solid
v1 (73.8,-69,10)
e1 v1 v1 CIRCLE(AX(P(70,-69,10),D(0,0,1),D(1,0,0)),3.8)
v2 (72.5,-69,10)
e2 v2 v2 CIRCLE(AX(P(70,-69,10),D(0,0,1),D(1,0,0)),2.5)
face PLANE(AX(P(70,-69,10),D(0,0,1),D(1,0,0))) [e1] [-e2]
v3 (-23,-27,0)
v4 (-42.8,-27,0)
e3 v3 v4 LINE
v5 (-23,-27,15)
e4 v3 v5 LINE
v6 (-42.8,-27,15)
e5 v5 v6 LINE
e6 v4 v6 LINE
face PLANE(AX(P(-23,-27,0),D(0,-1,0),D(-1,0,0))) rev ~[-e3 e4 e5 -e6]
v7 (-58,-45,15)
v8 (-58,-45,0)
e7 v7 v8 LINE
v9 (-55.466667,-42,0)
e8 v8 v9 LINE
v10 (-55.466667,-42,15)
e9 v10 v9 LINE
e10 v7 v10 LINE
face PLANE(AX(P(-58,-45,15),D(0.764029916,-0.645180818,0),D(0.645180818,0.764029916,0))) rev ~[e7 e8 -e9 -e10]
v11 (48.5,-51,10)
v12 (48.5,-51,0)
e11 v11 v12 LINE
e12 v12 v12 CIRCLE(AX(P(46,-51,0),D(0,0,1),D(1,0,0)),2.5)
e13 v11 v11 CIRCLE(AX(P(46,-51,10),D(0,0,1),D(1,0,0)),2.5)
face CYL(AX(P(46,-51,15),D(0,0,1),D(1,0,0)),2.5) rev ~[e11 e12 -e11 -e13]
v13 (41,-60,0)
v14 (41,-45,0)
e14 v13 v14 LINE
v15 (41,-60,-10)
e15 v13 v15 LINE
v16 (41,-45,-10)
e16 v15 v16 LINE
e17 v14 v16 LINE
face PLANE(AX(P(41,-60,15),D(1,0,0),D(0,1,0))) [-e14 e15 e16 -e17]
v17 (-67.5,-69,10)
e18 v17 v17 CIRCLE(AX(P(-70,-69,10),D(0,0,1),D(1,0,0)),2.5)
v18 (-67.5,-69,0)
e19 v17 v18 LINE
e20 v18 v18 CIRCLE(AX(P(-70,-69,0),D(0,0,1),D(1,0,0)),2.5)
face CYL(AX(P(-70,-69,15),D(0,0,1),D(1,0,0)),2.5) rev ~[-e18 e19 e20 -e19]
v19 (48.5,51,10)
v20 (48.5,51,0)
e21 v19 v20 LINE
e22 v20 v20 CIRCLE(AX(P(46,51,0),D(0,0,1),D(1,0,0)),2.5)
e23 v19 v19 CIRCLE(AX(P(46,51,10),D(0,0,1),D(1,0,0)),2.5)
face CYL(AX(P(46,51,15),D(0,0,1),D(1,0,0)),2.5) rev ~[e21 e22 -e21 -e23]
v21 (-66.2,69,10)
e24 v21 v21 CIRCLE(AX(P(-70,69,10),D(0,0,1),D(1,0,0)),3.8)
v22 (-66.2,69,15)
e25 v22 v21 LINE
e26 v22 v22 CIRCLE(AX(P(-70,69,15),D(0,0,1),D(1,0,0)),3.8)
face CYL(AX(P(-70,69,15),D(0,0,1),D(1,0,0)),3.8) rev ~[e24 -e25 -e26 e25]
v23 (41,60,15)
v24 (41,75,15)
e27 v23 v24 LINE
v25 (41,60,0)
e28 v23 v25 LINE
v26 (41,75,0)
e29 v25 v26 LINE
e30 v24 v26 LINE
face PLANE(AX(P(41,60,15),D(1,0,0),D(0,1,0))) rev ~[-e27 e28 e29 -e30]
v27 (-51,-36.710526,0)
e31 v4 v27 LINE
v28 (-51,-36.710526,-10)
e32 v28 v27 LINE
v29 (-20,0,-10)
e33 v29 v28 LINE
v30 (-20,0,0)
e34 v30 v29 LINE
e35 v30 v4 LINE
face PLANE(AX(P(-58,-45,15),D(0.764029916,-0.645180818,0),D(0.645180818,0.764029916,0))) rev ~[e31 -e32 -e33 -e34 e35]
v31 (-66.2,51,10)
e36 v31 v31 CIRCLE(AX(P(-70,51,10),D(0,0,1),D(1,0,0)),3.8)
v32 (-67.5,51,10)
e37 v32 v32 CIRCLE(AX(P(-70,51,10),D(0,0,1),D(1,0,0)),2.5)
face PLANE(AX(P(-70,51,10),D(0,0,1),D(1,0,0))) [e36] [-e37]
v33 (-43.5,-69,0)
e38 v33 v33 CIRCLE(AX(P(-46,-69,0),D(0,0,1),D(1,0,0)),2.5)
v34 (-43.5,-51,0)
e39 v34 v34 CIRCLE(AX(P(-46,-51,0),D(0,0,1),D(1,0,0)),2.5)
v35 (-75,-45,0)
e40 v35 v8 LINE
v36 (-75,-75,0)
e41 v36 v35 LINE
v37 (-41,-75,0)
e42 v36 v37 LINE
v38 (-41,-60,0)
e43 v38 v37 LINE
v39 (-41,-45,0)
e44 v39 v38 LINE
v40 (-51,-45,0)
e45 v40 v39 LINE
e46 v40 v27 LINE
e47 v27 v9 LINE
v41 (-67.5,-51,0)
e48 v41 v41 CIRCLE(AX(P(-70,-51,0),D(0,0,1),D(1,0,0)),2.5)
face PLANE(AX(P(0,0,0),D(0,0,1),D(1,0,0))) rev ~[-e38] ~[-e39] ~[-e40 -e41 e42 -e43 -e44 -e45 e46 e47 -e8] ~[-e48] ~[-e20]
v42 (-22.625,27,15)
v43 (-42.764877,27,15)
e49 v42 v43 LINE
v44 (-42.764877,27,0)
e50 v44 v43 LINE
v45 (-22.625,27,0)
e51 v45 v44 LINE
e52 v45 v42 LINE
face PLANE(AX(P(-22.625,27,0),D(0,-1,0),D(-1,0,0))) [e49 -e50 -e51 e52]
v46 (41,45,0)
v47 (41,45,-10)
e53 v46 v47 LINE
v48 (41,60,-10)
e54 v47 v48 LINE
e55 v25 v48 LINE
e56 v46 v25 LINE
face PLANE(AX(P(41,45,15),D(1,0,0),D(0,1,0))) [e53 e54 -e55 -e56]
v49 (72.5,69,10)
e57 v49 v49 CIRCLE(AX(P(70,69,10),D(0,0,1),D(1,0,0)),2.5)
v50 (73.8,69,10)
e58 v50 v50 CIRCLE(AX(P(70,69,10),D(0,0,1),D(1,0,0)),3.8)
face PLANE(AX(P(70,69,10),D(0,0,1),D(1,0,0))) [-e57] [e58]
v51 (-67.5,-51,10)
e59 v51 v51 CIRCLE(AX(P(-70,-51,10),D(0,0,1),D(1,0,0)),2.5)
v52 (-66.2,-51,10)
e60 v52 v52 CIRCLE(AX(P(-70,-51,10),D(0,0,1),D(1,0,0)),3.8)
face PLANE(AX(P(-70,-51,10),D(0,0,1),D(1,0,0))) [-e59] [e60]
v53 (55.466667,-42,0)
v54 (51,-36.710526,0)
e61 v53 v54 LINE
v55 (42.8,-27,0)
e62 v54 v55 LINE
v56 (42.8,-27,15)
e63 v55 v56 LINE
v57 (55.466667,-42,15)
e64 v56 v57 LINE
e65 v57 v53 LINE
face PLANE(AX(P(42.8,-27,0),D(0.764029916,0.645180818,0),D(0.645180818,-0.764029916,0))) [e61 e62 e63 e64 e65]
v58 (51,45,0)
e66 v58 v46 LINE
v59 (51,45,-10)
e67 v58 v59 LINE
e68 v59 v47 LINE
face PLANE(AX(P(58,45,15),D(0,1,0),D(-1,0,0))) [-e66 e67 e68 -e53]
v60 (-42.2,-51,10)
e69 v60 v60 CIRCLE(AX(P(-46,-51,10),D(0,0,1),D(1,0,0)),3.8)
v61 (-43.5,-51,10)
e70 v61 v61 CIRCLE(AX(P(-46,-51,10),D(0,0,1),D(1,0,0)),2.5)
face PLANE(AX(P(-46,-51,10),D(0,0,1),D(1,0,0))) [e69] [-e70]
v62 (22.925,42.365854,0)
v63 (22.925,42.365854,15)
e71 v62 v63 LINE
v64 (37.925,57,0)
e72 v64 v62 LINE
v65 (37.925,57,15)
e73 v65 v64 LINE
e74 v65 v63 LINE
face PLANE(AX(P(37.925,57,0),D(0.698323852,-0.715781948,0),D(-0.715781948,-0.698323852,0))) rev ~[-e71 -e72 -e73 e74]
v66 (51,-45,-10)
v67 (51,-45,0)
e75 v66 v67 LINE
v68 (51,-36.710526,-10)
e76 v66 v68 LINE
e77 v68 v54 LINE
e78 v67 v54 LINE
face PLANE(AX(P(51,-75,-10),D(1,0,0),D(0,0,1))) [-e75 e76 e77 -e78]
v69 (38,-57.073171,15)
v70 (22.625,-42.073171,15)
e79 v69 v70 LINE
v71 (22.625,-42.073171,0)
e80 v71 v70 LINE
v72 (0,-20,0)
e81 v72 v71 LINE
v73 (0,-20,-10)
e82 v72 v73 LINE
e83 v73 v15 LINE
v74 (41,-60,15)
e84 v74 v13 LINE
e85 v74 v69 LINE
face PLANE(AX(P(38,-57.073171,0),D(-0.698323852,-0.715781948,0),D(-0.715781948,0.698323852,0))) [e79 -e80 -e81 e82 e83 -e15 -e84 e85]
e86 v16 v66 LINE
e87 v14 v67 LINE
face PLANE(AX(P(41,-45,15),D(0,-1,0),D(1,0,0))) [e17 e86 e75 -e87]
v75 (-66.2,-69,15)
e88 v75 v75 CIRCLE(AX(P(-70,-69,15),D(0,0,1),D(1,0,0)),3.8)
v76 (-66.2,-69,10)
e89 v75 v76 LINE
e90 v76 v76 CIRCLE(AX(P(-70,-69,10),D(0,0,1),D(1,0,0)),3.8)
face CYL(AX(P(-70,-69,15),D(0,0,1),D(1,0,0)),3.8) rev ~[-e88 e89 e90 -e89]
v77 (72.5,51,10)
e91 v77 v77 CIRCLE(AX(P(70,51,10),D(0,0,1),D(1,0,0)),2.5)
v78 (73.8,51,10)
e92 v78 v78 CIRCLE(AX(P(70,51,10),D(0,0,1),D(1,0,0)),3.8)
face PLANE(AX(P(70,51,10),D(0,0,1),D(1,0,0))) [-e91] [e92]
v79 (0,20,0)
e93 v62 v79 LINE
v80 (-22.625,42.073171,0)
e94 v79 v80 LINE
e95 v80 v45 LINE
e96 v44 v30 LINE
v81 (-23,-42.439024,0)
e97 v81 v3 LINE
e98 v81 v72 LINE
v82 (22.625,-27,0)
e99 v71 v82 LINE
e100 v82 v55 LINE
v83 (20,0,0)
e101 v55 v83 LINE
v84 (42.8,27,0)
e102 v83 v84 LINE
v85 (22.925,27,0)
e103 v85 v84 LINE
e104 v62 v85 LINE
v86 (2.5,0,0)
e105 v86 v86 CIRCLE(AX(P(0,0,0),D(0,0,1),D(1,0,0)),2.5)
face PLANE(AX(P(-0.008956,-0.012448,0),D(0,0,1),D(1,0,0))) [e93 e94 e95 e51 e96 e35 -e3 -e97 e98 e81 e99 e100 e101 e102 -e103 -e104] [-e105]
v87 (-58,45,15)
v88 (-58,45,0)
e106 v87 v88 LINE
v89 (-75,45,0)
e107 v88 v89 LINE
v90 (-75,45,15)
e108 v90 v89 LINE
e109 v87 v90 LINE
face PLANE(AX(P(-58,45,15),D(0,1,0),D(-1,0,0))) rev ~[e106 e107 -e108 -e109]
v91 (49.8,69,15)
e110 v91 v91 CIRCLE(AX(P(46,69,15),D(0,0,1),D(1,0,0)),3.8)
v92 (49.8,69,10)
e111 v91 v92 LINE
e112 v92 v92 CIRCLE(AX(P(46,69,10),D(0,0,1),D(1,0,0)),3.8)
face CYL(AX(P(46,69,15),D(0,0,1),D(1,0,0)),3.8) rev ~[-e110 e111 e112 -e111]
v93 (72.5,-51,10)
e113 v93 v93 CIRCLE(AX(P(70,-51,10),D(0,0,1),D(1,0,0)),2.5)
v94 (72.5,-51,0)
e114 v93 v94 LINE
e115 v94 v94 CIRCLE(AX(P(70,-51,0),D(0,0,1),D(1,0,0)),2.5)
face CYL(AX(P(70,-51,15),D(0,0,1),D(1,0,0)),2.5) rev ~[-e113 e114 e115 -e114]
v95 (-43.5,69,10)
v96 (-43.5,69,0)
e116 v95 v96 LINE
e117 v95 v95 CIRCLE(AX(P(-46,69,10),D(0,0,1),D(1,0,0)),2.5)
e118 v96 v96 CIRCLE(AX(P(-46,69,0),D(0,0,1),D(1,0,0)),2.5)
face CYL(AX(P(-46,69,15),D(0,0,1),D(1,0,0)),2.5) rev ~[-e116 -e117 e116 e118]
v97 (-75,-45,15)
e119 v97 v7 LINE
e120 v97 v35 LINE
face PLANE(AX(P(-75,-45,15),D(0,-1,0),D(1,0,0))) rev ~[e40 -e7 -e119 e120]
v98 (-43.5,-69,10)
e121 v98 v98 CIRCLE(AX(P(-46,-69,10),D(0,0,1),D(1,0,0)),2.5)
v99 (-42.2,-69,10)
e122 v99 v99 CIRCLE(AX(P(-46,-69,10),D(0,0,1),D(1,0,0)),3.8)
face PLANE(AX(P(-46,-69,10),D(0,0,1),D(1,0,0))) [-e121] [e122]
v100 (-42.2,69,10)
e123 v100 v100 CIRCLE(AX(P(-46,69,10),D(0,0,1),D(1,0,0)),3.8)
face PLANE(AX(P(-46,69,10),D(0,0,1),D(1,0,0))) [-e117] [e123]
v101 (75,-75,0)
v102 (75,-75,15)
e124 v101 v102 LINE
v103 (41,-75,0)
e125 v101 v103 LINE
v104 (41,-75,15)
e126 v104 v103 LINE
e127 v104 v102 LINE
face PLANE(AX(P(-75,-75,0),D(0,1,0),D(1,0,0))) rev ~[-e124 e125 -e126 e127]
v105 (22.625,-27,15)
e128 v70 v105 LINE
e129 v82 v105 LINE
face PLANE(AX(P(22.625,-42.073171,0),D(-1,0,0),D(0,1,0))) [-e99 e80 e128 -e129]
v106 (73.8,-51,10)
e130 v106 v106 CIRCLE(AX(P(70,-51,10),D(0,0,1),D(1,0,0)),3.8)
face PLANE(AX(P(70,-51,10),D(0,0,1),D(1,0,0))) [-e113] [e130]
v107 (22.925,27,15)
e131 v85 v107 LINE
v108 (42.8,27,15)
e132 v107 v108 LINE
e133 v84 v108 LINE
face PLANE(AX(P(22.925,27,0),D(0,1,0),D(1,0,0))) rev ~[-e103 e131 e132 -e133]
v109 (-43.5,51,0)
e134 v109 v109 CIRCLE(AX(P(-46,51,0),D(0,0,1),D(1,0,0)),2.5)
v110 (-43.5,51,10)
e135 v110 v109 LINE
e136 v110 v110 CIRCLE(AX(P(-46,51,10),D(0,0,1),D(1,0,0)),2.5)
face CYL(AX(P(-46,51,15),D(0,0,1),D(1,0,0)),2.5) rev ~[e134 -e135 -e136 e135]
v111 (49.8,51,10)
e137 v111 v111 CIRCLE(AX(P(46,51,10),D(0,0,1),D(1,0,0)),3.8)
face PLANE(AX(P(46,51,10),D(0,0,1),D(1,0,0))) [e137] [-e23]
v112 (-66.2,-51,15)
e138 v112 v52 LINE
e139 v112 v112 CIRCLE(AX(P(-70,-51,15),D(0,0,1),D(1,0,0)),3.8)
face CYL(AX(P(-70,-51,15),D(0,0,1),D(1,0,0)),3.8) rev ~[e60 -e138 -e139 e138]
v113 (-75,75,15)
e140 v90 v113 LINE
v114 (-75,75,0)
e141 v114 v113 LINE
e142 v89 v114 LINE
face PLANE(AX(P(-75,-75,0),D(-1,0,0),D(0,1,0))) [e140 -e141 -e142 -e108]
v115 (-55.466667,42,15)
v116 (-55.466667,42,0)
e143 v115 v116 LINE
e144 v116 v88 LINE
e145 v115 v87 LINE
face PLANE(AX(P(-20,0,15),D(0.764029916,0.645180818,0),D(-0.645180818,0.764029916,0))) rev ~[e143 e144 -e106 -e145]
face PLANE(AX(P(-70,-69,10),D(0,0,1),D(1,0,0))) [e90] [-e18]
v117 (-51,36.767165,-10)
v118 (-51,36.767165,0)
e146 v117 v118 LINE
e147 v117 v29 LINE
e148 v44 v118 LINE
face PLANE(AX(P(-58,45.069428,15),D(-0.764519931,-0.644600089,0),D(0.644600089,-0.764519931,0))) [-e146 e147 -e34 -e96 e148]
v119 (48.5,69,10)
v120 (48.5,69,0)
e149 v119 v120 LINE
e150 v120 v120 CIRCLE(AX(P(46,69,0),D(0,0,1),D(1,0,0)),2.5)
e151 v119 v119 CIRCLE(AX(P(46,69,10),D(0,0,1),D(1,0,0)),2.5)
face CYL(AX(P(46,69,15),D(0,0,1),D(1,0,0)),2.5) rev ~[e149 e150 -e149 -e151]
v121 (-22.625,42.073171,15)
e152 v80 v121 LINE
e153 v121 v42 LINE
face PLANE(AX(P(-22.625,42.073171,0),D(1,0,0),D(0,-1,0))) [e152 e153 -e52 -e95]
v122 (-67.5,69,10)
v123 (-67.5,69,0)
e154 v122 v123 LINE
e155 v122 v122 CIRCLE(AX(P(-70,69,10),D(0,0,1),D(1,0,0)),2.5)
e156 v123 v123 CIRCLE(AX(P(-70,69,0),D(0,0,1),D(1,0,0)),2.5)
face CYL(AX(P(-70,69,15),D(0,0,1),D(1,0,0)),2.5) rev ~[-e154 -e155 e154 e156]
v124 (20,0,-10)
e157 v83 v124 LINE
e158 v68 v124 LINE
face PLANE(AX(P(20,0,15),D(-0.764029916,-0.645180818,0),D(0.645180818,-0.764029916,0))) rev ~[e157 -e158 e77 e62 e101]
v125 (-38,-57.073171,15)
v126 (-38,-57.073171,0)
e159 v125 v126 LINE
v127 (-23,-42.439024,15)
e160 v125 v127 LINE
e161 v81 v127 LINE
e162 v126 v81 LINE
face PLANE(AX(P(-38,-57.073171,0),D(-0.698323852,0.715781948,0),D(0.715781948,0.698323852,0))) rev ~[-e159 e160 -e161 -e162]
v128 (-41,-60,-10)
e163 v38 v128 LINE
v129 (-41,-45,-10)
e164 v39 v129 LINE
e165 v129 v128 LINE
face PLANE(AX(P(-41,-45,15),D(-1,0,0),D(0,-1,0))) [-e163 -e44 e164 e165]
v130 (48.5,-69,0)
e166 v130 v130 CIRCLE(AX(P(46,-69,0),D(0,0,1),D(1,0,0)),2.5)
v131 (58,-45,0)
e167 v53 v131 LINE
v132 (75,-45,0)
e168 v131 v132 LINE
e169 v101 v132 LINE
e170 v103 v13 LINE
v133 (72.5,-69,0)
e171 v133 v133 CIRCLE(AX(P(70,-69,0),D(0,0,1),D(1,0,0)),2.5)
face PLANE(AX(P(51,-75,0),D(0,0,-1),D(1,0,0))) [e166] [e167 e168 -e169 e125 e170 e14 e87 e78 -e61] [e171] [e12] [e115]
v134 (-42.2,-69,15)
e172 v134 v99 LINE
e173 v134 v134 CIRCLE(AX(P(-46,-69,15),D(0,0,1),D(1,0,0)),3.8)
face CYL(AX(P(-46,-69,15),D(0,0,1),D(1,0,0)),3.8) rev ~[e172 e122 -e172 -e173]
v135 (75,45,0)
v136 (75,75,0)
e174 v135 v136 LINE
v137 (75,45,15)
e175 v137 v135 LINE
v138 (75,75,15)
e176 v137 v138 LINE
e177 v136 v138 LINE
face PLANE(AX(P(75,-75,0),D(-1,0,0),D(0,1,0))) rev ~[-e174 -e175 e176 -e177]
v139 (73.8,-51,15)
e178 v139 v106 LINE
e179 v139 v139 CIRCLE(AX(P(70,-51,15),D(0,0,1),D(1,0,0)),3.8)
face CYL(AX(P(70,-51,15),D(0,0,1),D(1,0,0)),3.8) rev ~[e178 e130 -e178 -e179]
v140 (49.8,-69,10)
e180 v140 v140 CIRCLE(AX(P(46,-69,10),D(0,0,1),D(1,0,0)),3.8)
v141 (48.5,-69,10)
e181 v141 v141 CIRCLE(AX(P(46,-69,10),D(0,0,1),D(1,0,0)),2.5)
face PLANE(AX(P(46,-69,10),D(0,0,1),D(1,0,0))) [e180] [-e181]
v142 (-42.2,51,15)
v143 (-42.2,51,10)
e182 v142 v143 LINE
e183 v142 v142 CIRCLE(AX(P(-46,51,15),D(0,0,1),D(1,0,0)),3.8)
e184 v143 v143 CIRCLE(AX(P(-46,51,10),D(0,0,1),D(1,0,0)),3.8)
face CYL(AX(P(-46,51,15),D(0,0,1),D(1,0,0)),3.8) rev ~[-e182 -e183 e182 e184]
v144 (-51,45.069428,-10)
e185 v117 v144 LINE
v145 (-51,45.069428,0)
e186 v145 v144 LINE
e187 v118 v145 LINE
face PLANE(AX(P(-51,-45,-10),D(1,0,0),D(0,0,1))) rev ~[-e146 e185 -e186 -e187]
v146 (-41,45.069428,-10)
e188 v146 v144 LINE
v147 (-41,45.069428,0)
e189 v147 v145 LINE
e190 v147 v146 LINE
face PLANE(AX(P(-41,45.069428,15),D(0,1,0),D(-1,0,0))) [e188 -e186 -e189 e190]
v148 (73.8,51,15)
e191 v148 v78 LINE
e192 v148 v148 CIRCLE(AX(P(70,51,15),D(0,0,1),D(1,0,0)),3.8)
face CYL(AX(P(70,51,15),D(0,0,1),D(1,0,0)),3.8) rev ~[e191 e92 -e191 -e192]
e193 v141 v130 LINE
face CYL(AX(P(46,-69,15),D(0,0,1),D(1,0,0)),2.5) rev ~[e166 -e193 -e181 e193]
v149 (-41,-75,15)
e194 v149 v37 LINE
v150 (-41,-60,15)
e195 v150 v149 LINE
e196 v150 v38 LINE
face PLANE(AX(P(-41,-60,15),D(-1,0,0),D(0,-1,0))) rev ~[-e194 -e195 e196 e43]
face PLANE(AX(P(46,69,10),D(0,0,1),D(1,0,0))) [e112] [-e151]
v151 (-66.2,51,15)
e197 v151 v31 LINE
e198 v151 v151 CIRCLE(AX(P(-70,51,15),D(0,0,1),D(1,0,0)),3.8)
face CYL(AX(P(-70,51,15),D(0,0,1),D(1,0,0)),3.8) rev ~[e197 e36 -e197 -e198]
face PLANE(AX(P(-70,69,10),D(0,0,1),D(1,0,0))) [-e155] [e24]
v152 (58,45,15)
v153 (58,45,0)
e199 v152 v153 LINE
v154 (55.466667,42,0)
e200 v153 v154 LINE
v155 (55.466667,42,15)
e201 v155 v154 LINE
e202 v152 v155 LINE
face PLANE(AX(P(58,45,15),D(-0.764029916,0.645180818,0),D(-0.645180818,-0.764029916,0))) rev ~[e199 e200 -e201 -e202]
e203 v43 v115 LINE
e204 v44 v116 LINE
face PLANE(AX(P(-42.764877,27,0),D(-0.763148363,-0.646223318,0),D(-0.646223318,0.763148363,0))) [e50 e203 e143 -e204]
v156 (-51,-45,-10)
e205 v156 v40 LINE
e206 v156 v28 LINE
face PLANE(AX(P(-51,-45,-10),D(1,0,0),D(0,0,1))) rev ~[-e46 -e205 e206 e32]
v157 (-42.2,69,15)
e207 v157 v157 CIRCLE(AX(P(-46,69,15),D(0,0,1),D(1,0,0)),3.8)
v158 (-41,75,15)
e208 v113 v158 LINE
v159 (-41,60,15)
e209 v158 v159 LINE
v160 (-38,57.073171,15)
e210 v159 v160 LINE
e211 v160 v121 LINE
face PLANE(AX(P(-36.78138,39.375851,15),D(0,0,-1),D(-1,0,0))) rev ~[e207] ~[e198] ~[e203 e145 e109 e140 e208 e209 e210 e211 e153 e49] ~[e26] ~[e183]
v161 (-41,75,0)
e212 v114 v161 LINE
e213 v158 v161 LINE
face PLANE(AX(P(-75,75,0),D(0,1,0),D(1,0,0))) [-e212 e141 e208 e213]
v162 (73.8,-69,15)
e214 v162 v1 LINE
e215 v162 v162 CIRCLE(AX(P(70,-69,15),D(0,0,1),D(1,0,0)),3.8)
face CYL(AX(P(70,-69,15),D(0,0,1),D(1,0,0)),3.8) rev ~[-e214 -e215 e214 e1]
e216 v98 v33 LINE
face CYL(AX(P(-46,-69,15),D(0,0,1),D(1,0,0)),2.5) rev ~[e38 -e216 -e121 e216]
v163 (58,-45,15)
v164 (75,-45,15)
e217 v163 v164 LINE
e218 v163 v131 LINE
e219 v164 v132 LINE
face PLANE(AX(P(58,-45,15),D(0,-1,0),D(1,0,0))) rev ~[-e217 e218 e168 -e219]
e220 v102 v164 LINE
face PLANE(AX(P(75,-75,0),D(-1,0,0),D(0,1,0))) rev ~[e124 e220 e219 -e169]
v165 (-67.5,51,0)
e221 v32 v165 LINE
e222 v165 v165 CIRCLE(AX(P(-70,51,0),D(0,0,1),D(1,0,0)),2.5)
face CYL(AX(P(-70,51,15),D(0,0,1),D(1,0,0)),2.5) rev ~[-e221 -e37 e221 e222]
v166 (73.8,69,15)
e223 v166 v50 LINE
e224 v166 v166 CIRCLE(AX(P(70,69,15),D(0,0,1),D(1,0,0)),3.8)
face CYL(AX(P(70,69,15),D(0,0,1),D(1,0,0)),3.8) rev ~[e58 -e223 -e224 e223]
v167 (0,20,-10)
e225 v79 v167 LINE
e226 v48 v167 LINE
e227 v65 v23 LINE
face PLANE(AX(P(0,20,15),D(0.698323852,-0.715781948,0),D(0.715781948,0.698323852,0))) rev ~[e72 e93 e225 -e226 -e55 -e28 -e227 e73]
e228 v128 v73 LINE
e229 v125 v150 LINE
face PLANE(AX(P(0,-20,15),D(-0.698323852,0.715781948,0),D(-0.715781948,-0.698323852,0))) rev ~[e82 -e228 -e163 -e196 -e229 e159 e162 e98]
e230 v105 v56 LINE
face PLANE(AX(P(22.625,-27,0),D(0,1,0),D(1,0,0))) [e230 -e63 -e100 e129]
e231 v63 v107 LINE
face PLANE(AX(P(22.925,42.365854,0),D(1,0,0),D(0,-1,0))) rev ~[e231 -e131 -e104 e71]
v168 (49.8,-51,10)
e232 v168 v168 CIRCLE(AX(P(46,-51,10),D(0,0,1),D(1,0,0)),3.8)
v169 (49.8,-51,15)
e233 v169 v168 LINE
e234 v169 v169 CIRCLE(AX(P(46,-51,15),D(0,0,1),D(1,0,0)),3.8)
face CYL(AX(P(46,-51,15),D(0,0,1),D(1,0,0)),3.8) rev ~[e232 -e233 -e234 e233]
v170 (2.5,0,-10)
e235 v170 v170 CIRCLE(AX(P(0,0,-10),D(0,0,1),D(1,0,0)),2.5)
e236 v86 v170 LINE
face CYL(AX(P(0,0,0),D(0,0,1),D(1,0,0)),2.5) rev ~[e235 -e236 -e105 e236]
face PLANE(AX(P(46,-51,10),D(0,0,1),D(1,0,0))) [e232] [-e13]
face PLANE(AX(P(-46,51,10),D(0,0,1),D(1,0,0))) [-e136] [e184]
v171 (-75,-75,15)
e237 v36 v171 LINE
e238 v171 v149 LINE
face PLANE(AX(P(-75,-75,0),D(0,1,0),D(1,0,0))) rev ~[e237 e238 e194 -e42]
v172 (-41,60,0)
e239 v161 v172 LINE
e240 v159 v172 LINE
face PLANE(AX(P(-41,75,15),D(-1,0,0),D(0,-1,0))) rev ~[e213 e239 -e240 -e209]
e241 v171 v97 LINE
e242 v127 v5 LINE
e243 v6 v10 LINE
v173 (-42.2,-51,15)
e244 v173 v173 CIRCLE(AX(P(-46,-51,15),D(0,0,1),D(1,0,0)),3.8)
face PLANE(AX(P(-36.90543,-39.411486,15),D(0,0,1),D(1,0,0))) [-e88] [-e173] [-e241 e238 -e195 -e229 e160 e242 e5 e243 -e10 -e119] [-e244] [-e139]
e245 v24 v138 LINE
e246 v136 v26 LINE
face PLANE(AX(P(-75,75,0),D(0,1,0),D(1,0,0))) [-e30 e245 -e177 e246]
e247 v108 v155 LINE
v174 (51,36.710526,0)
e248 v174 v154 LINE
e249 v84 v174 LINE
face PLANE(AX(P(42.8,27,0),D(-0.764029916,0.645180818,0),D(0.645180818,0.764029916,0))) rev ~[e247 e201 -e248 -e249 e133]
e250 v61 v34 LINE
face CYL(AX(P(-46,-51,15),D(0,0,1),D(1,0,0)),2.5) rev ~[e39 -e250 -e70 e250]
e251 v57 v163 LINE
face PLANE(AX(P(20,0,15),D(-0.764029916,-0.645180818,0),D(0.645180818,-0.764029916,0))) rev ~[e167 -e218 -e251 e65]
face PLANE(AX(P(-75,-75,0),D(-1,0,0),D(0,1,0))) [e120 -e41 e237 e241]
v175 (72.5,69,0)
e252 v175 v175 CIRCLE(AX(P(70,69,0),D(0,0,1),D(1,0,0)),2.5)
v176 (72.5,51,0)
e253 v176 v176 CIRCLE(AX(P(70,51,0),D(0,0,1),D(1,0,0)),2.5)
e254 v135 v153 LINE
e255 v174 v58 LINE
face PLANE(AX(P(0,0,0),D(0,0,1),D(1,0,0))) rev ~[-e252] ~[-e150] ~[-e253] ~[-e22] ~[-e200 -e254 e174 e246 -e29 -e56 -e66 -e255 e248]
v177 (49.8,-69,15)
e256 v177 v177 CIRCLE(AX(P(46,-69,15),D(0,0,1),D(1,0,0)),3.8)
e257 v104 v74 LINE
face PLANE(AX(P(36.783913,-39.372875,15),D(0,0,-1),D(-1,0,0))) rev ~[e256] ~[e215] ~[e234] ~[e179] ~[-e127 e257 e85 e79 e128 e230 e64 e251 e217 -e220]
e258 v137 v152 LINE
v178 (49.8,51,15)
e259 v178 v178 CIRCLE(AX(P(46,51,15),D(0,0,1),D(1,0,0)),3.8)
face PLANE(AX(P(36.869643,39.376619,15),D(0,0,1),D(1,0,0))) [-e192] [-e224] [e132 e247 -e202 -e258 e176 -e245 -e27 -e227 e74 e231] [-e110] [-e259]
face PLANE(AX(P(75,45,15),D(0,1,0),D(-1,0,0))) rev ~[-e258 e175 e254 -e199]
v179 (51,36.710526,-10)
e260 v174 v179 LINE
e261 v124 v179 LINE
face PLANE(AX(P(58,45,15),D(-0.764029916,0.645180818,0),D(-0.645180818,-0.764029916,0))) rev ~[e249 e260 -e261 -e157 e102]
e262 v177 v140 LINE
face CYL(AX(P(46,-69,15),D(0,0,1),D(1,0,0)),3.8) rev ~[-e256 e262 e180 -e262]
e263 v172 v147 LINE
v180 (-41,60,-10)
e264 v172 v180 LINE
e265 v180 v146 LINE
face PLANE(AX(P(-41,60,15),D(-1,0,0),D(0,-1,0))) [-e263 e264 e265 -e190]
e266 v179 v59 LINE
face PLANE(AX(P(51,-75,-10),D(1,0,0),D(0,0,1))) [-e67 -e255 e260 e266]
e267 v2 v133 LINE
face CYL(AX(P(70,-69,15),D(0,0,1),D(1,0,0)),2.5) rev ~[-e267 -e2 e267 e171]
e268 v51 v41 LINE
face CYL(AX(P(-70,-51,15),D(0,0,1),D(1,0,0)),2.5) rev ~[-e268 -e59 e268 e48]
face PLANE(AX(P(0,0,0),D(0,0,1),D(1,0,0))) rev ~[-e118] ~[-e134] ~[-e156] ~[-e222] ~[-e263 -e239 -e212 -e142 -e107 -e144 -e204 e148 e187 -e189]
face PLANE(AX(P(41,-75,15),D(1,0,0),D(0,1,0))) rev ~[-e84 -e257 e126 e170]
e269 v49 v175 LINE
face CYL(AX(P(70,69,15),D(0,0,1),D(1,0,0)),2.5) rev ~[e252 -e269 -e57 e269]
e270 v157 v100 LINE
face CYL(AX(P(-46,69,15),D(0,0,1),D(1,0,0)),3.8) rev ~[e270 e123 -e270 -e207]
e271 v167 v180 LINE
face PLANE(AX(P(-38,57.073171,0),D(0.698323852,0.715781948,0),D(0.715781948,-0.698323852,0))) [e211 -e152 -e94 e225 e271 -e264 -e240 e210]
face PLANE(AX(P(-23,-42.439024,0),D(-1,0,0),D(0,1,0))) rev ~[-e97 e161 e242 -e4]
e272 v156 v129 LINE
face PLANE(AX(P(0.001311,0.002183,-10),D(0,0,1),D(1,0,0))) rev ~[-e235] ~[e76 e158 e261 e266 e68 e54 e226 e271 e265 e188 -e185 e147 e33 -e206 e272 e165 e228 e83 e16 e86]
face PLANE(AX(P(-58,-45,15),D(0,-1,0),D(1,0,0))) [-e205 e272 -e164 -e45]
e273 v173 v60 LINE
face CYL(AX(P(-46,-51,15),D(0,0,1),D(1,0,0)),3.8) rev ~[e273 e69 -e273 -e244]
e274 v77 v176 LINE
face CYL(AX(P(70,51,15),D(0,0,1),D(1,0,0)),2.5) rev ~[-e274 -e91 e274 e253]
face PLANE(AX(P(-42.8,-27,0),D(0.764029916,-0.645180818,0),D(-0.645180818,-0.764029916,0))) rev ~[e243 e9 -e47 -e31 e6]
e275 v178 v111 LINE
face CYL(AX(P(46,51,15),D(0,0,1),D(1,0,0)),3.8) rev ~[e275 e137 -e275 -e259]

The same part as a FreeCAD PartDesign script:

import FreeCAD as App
import Part
import Sketcher
from FreeCAD import Vector


def add_polygon(sketch, points):
    """Adds a closed chain of lines whose ends are joined by coincident constraints."""
    first, n = sketch.GeometryCount, len(points)
    for a, b in zip(points, points[1:] + points[:1]):
        sketch.addGeometry(Part.LineSegment(App.Vector(*a, 0), App.Vector(*b, 0)), False)
    for i in range(n):
        sketch.addConstraint(Sketcher.Constraint("Coincident", first + i, 2, first + (i + 1) % n, 1))

doc = App.newDocument("Part")
params = doc.addObject("Spreadsheet::Sheet", "Params")
for row, (alias, value) in enumerate([
    ("sketch1_width", "150 mm"),
    ("pad1_length", "15 mm"),
    ("sketch2_width", "82 mm"),
    ("sketch2_width2", "17 mm"),
    ("sketch2_height", "15 mm"),
    ("sketch2_height2", "90 mm"),
    ("pocket1_length", "15 mm"),
    ("sketch3_width", "17 mm"),
    ("sketch3_height", "15 mm"),
    ("pad2_length", "25 mm"),
    ("sketch4_height", "15 mm"),
    ("sketch4_length", "52 mm"),
    ("pocket2_length", "15 mm"),
    ("sketch5_diameter", "5 mm"),
    ("pocket3_length", "15 mm"),
    ("sketch6_diameter", "5 mm"),
    ("pocket4_length", "15 mm"),
    ("sketch7_diameter", "7.6 mm"),
    ("pocket5_length", "5 mm"),
    ("sketch8_diameter", "5 mm"),
    ("sketch9_diameter", "7.6 mm"),
    ("pocket7_length", "5 mm"),
    ("sketch10_diameter", "5 mm"),
    ("sketch11_diameter", "7.6 mm"),
    ("pocket9_length", "5 mm"),
    ("sketch12_diameter", "5 mm"),
    ("sketch13_diameter", "7.6 mm"),
    ("pocket11_length", "5 mm"),
    ("sketch14_width", "19.8 mm"),
    ("pad3_length", "15 mm"),
    ("pad4_length", "15 mm"),
    ("sketch16_height", "15 mm"),
    ("pad5_length", "15 mm"),
    ("pad6_length", "15 mm"),
    ("sketch18_width", "7 mm"),
    ("sketch18_height", "10 mm"),
    ("sketch19_width", "7 mm"),
    ("sketch19_height", "10 mm"),
], start=1):
    params.set(f"A{row}", alias)
    params.set(f"B{row}", "=" + value)
    params.setAlias(f"B{row}", alias)

body = doc.addObject("PartDesign::Body", "Body")

# Sketch on XY plane
sketch1 = doc.addObject("Sketcher::SketchObject", "Sketch")
body.addObject(sketch1)
sketch1.AttachmentSupport = (doc.XY_Plane, [""])
sketch1.MapMode = "FlatFace"
add_polygon(sketch1, [(-75, 75), (-75, -75), (75, -75), (75, 75)])  # lines 0-3
sketch1.addConstraint([
    Sketcher.Constraint("Vertical", 0),
    Sketcher.Constraint("Horizontal", 1),
    Sketcher.Constraint("Vertical", 2),
    Sketcher.Constraint("Horizontal", 3),
    Sketcher.Constraint("Symmetric", 0, 2, 2, 2, -1, 1),
    Sketcher.Constraint("Equal", 3, 0),
    Sketcher.Constraint("DistanceX", 1, 1, 1, 2, 150.0),
])
sketch1.setExpression("Constraints[10]", "Params.sketch1_width")
pad1 = doc.addObject("PartDesign::Pad", "Pad")
body.addObject(pad1)
pad1.Profile = sketch1
pad1.setExpression("Length", "Params.pad1_length")

# Sketch on XY plane
sketch2 = doc.addObject("Sketcher::SketchObject", "Sketch001")
body.addObject(sketch2)
sketch2.AttachmentSupport = (doc.XY_Plane, [""])
sketch2.MapMode = "FlatFace"
sketch2.AttachmentOffset = App.Placement(Vector(0, 0, 15), App.Rotation())
add_polygon(sketch2, [(-41, 75), (-41, 60), (0, 20), (41, 60), (41, 75)])  # lines 0-4
add_polygon(sketch2, [(-20, 0), (-58, 45), (-75, 45), (-75, -45), (-58, -45)])  # lines 5-9
add_polygon(sketch2, [(58, 45), (20, 0), (58, -45), (75, -45), (75, 45)])  # lines 10-14
add_polygon(sketch2, [(41, -60), (0, -20), (-41, -60), (-41, -75), (41, -75)])  # lines 15-19
sketch2.addConstraint([
    Sketcher.Constraint("Vertical", 0),
    Sketcher.Constraint("Vertical", 3),
    Sketcher.Constraint("Horizontal", 4),
    Sketcher.Constraint("Horizontal", 6),
    Sketcher.Constraint("Vertical", 7),
    Sketcher.Constraint("Horizontal", 8),
    Sketcher.Constraint("Horizontal", 12),
    Sketcher.Constraint("Vertical", 13),
    Sketcher.Constraint("Horizontal", 14),
    Sketcher.Constraint("Vertical", 17),
    Sketcher.Constraint("Horizontal", 18),
    Sketcher.Constraint("Vertical", 19),
    Sketcher.Constraint("Symmetric", 9, 2, 10, 2, -1, 1),
    Sketcher.Constraint("Symmetric", 5, 2, 11, 2, -1, 1),
    Sketcher.Constraint("Symmetric", 7, 2, 13, 2, -1, 1),
    Sketcher.Constraint("Symmetric", 1, 2, 15, 2, -1, 1),
    Sketcher.Constraint("Symmetric", 2, 2, 16, 2, -1, 1),
    Sketcher.Constraint("Symmetric", 4, 2, 18, 2, -1, 1),
    Sketcher.Constraint("Symmetric", 0, 2, 2, 2, -2),
    Sketcher.Constraint("Symmetric", 8, 2, 11, 2, -2),
    Sketcher.Constraint("PointOnObject", 1, 2, -2),
    Sketcher.Constraint("PointOnObject", 9, 2, -1),
    Sketcher.Constraint("Parallel", 9, 10),
    Sketcher.Constraint("Parallel", 1, 15),
    Sketcher.Constraint("DistanceX", 4, 2, 4, 1, 82.0),
    Sketcher.Constraint("DistanceX", 6, 2, 6, 1, 17.0),
    Sketcher.Constraint("DistanceY", 0, 2, 0, 1, 15.0),
    Sketcher.Constraint("DistanceY", 7, 2, 7, 1, 90.0),
    Sketcher.Constraint("DistanceY", -1, 1, 0, 2, 60.0),
    Sketcher.Constraint("DistanceY", -1, 1, 1, 2, 20.0),
    Sketcher.Constraint("DistanceX", 5, 2, -1, 1, 58.0),
    Sketcher.Constraint("DistanceX", 9, 2, -1, 1, 20.0),
])
sketch2.setExpression("Constraints[44]", "Params.sketch2_width")
sketch2.setExpression("Constraints[45]", "Params.sketch2_width2")
sketch2.setExpression("Constraints[46]", "Params.sketch2_height")
sketch2.setExpression("Constraints[47]", "Params.sketch2_height2")
pocket1 = doc.addObject("PartDesign::Pocket", "Pocket")
body.addObject(pocket1)
pocket1.Profile = sketch2
pocket1.setExpression("Length", "Params.pocket1_length")

# Sketch on XY plane
sketch3 = doc.addObject("Sketcher::SketchObject", "Sketch002")
body.addObject(sketch3)
sketch3.AttachmentSupport = (doc.XY_Plane, [""])
sketch3.MapMode = "FlatFace"
sketch3.AttachmentOffset = App.Placement(Vector(0, 0, 15), App.Rotation())
add_polygon(sketch3, [(-41, 45.069428), (-58, 45.069428), (-20, 0), (-58, -45), (-41, -45), (-41, -60), (0, -20), (41, -60), (41, -45), (58, -45), (20, 0), (58, 45), (41, 45), (41, 60), (0, 20), (-41, 60)])  # lines 0-15
sketch3.addConstraint([
    Sketcher.Constraint("Horizontal", 0),
    Sketcher.Constraint("Horizontal", 3),
    Sketcher.Constraint("Vertical", 4),
    Sketcher.Constraint("Vertical", 7),
    Sketcher.Constraint("Horizontal", 8),
    Sketcher.Constraint("Horizontal", 11),
    Sketcher.Constraint("Vertical", 12),
    Sketcher.Constraint("Vertical", 15),
    Sketcher.Constraint("Symmetric", 1, 2, 9, 2, -1, 1),
    Sketcher.Constraint("Symmetric", 2, 2, 10, 2, -1, 1),
    Sketcher.Constraint("Symmetric", 4, 2, 12, 2, -1, 1),
    Sketcher.Constraint("Symmetric", 5, 2, 13, 2, -1, 1),
    Sketcher.Constraint("Symmetric", 6, 2, 14, 2, -1, 1),
    Sketcher.Constraint("Symmetric", 4, 2, 6, 2, -2),
    Sketcher.Constraint("Symmetric", 2, 2, 8, 2, -2),
    Sketcher.Constraint("PointOnObject", 1, 2, -1),
    Sketcher.Constraint("PointOnObject", 5, 2, -2),
    Sketcher.Constraint("Vertical", 0, 2, 2, 2),
    Sketcher.Constraint("DistanceX", 0, 2, 0, 1, 17.0),
    Sketcher.Constraint("DistanceY", 4, 2, 4, 1, 15.0),
    Sketcher.Constraint("DistanceX", 0, 2, -1, 1, 58.0),
    Sketcher.Constraint("DistanceX", 1, 2, -1, 1, 20.0),
    Sketcher.Constraint("DistanceY", 2, 2, -1, 1, 45.0),
    Sketcher.Constraint("DistanceY", 5, 2, -1, 1, 20.0),
    Sketcher.Constraint("DistanceY", 15, 2, 15, 1, 14.930572),
])
sketch3.setExpression("Constraints[34]", "Params.sketch3_width")
sketch3.setExpression("Constraints[35]", "Params.sketch3_height")
pad2 = doc.addObject("PartDesign::Pad", "Pad001")
body.addObject(pad2)
pad2.Profile = sketch3
pad2.setExpression("Length", "Params.pad2_length")
pad2.Reversed = True

# Sketch on XY plane
sketch4 = doc.addObject("Sketcher::SketchObject", "Sketch003")
body.addObject(sketch4)
sketch4.AttachmentSupport = (doc.XY_Plane, [""])
sketch4.MapMode = "FlatFace"
sketch4.AttachmentOffset = App.Placement(Vector(0, 0, 15), App.Rotation())
add_polygon(sketch4, [(-38, -42), (-38, -57.073171), (0, -20), (38, -57.073171), (38, -42), (55.466667, -42), (20, 0), (55.466667, 42), (37.925, 42), (37.925, 57), (0, 20), (-37.220661, 56.31284), (-37.426275, 56.513439), (-38, 57.073171), (-38, 42), (-55.466667, 42), (-20, 0), (-55.466667, -42)])  # lines 0-17
sketch4.addConstraint([
    Sketcher.Constraint("Vertical", 0),
    Sketcher.Constraint("Vertical", 3),
    Sketcher.Constraint("Horizontal", 4),
    Sketcher.Constraint("Horizontal", 7),
    Sketcher.Constraint("Vertical", 8),
    Sketcher.Constraint("Vertical", 13),
    Sketcher.Constraint("Horizontal", 14),
    Sketcher.Constraint("Horizontal", 17),
    Sketcher.Constraint("Symmetric", 1, 2, 9, 2, -1, 1),
    Sketcher.Constraint("Symmetric", 2, 2, 12, 2, -1, 1),
    Sketcher.Constraint("Symmetric", 4, 2, 14, 2, -1, 1),
    Sketcher.Constraint("Symmetric", 5, 2, 15, 2, -1, 1),
    Sketcher.Constraint("Symmetric", 6, 2, 16, 2, -1, 1),
    Sketcher.Constraint("Symmetric", 0, 2, 2, 2, -2),
    Sketcher.Constraint("Symmetric", 6, 2, 14, 2, -2),
    Sketcher.Constraint("PointOnObject", 1, 2, -2),
    Sketcher.Constraint("PointOnObject", 5, 2, -1),
    Sketcher.Constraint("Parallel", 1, 9),
    Sketcher.Constraint("Parallel", 2, 10),
    Sketcher.Constraint("Parallel", 10, 11),
    Sketcher.Constraint("DistanceY", 8, 1, 8, 2, 15.0),
    Sketcher.Constraint("Distance", 10, 52.0),
    Sketcher.Constraint("DistanceX", 0, 2, -1, 1, 38.0),
    Sketcher.Constraint("DistanceY", 1, 2, -1, 1, 20.0),
    Sketcher.Constraint("DistanceY", 3, 2, -1, 1, 42.0),
    Sketcher.Constraint("DistanceX", -1, 1, 5, 2, 20.0),
    Sketcher.Constraint("DistanceX", -1, 1, 7, 2, 37.925),
    Sketcher.Constraint("DistanceY", 10, 2, 11, 2, 0.200599),
    Sketcher.Constraint("Distance", 5, 54.971669),
])
sketch4.setExpression("Constraints[38]", "Params.sketch4_height")
sketch4.setExpression("Constraints[39]", "Params.sketch4_length")
pocket2 = doc.addObject("PartDesign::Pocket", "Pocket001")
body.addObject(pocket2)
pocket2.Profile = sketch4
pocket2.setExpression("Length", "Params.pocket2_length")

# Sketch on XY plane
sketch5 = doc.addObject("Sketcher::SketchObject", "Sketch004")
body.addObject(sketch5)
sketch5.AttachmentSupport = (doc.XY_Plane, [""])
sketch5.MapMode = "FlatFace"
sketch5.addGeometry(Part.Circle(Vector(0, 0, 0), Vector(0, 0, 1), 2.5), False)
sketch5.addConstraint([
    Sketcher.Constraint("Coincident", 0, 3, -1, 1),
    Sketcher.Constraint("Diameter", 0, 5.0),
])
sketch5.setExpression("Constraints[1]", "Params.sketch5_diameter")
pocket3 = doc.addObject("PartDesign::Pocket", "Pocket002")
body.addObject(pocket3)
pocket3.Profile = sketch5
pocket3.setExpression("Length", "Params.pocket3_length")

# Sketch on XY plane
sketch6 = doc.addObject("Sketcher::SketchObject", "Sketch005")
body.addObject(sketch6)
sketch6.AttachmentSupport = (doc.XY_Plane, [""])
sketch6.MapMode = "FlatFace"
sketch6.AttachmentOffset = App.Placement(Vector(0, 0, 15), App.Rotation())
sketch6.addGeometry([
    Part.Circle(Vector(70, -51, 0), Vector(0, 0, 1), 2.5),
    Part.Circle(Vector(46, -51, 0), Vector(0, 0, 1), 2.5),
    Part.Circle(Vector(46, -69, 0), Vector(0, 0, 1), 2.5),
    Part.Circle(Vector(70, -69, 0), Vector(0, 0, 1), 2.5),
], False)
sketch6.addConstraint([
    Sketcher.Constraint("Equal", 0, 1),
    Sketcher.Constraint("Equal", 1, 2),
    Sketcher.Constraint("Equal", 2, 3),
    Sketcher.Constraint("Horizontal", 0, 3, 1, 3),
    Sketcher.Constraint("Horizontal", 2, 3, 3, 3),
    Sketcher.Constraint("Vertical", 1, 3, 2, 3),
    Sketcher.Constraint("Vertical", 0, 3, 3, 3),
    Sketcher.Constraint("Diameter", 0, 5.0),
    Sketcher.Constraint("DistanceX", -1, 1, 0, 3, 70.0),
    Sketcher.Constraint("DistanceY", 0, 3, -1, 1, 51.0),
    Sketcher.Constraint("DistanceX", -1, 1, 1, 3, 46.0),
    Sketcher.Constraint("DistanceY", 2, 3, -1, 1, 69.0),
])
sketch6.setExpression("Constraints[7]", "Params.sketch6_diameter")
pocket4 = doc.addObject("PartDesign::Pocket", "Pocket003")
body.addObject(pocket4)
pocket4.Profile = sketch6
pocket4.setExpression("Length", "Params.pocket4_length")

# Sketch on XY plane
sketch7 = doc.addObject("Sketcher::SketchObject", "Sketch006")
body.addObject(sketch7)
sketch7.AttachmentSupport = (doc.XY_Plane, [""])
sketch7.MapMode = "FlatFace"
sketch7.AttachmentOffset = App.Placement(Vector(0, 0, 15), App.Rotation())
sketch7.addGeometry([
    Part.Circle(Vector(46, -51, 0), Vector(0, 0, 1), 3.8),
    Part.Circle(Vector(70, -51, 0), Vector(0, 0, 1), 3.8),
    Part.Circle(Vector(70, -69, 0), Vector(0, 0, 1), 3.8),
    Part.Circle(Vector(46, -69, 0), Vector(0, 0, 1), 3.8),
], False)
sketch7.addConstraint([
    Sketcher.Constraint("Equal", 0, 1),
    Sketcher.Constraint("Equal", 1, 2),
    Sketcher.Constraint("Equal", 2, 3),
    Sketcher.Constraint("Horizontal", 0, 3, 1, 3),
    Sketcher.Constraint("Horizontal", 2, 3, 3, 3),
    Sketcher.Constraint("Vertical", 1, 3, 2, 3),
    Sketcher.Constraint("Vertical", 0, 3, 3, 3),
    Sketcher.Constraint("Diameter", 0, 7.6),
    Sketcher.Constraint("DistanceX", -1, 1, 0, 3, 46.0),
    Sketcher.Constraint("DistanceY", 0, 3, -1, 1, 51.0),
    Sketcher.Constraint("DistanceX", -1, 1, 1, 3, 70.0),
    Sketcher.Constraint("DistanceY", 2, 3, -1, 1, 69.0),
])
sketch7.setExpression("Constraints[7]", "Params.sketch7_diameter")
pocket5 = doc.addObject("PartDesign::Pocket", "Pocket004")
body.addObject(pocket5)
pocket5.Profile = sketch7
pocket5.setExpression("Length", "Params.pocket5_length")

# Sketch on XY plane
sketch8 = doc.addObject("Sketcher::SketchObject", "Sketch007")
body.addObject(sketch8)
sketch8.AttachmentSupport = (doc.XY_Plane, [""])
sketch8.MapMode = "FlatFace"
sketch8.AttachmentOffset = App.Placement(Vector(0, 0, 15), App.Rotation())
sketch8.addGeometry([
    Part.Circle(Vector(-46, -69, 0), Vector(0, 0, 1), 2.5),
    Part.Circle(Vector(-46, -51, 0), Vector(0, 0, 1), 2.5),
    Part.Circle(Vector(-70, -51, 0), Vector(0, 0, 1), 2.5),
    Part.Circle(Vector(-70, -69, 0), Vector(0, 0, 1), 2.5),
], False)
sketch8.addConstraint([
    Sketcher.Constraint("Equal", 0, 1),
    Sketcher.Constraint("Equal", 1, 2),
    Sketcher.Constraint("Equal", 2, 3),
    Sketcher.Constraint("Horizontal", 1, 3, 2, 3),
    Sketcher.Constraint("Horizontal", 0, 3, 3, 3),
    Sketcher.Constraint("Vertical", 0, 3, 1, 3),
    Sketcher.Constraint("Vertical", 2, 3, 3, 3),
    Sketcher.Constraint("Diameter", 0, 5.0),
    Sketcher.Constraint("DistanceX", 0, 3, -1, 1, 46.0),
    Sketcher.Constraint("DistanceY", 0, 3, -1, 1, 69.0),
    Sketcher.Constraint("DistanceY", 1, 3, -1, 1, 51.0),
    Sketcher.Constraint("DistanceX", 2, 3, -1, 1, 70.0),
])
sketch8.setExpression("Constraints[7]", "Params.sketch8_diameter")
pocket6 = doc.addObject("PartDesign::Pocket", "Pocket005")
body.addObject(pocket6)
pocket6.Profile = sketch8
pocket6.Type = "ThroughAll"

# Sketch on XY plane
sketch9 = doc.addObject("Sketcher::SketchObject", "Sketch008")
body.addObject(sketch9)
sketch9.AttachmentSupport = (doc.XY_Plane, [""])
sketch9.MapMode = "FlatFace"
sketch9.AttachmentOffset = App.Placement(Vector(0, 0, 15), App.Rotation())
sketch9.addGeometry([
    Part.Circle(Vector(-70, -51, 0), Vector(0, 0, 1), 3.8),
    Part.Circle(Vector(-46, -51, 0), Vector(0, 0, 1), 3.8),
    Part.Circle(Vector(-70, -69, 0), Vector(0, 0, 1), 3.8),
    Part.Circle(Vector(-46, -69, 0), Vector(0, 0, 1), 3.8),
], False)
sketch9.addConstraint([
    Sketcher.Constraint("Equal", 0, 1),
    Sketcher.Constraint("Equal", 1, 2),
    Sketcher.Constraint("Equal", 2, 3),
    Sketcher.Constraint("Horizontal", 0, 3, 1, 3),
    Sketcher.Constraint("Horizontal", 2, 3, 3, 3),
    Sketcher.Constraint("Vertical", 0, 3, 2, 3),
    Sketcher.Constraint("Vertical", 1, 3, 3, 3),
    Sketcher.Constraint("Diameter", 0, 7.6),
    Sketcher.Constraint("DistanceX", 0, 3, -1, 1, 70.0),
    Sketcher.Constraint("DistanceY", 0, 3, -1, 1, 51.0),
    Sketcher.Constraint("DistanceX", 1, 3, -1, 1, 46.0),
    Sketcher.Constraint("DistanceY", 2, 3, -1, 1, 69.0),
])
sketch9.setExpression("Constraints[7]", "Params.sketch9_diameter")
pocket7 = doc.addObject("PartDesign::Pocket", "Pocket006")
body.addObject(pocket7)
pocket7.Profile = sketch9
pocket7.setExpression("Length", "Params.pocket7_length")

# Sketch on XY plane
sketch10 = doc.addObject("Sketcher::SketchObject", "Sketch009")
body.addObject(sketch10)
sketch10.AttachmentSupport = (doc.XY_Plane, [""])
sketch10.MapMode = "FlatFace"
sketch10.AttachmentOffset = App.Placement(Vector(0, 0, 15), App.Rotation())
sketch10.addGeometry([
    Part.Circle(Vector(46, 69, 0), Vector(0, 0, 1), 2.5),
    Part.Circle(Vector(70, 69, 0), Vector(0, 0, 1), 2.5),
    Part.Circle(Vector(70, 51, 0), Vector(0, 0, 1), 2.5),
    Part.Circle(Vector(46, 51, 0), Vector(0, 0, 1), 2.5),
], False)
sketch10.addConstraint([
    Sketcher.Constraint("Equal", 0, 1),
    Sketcher.Constraint("Equal", 1, 2),
    Sketcher.Constraint("Equal", 2, 3),
    Sketcher.Constraint("Horizontal", 0, 3, 1, 3),
    Sketcher.Constraint("Horizontal", 2, 3, 3, 3),
    Sketcher.Constraint("Vertical", 1, 3, 2, 3),
    Sketcher.Constraint("Vertical", 0, 3, 3, 3),
    Sketcher.Constraint("Diameter", 0, 5.0),
    Sketcher.Constraint("DistanceX", -1, 1, 0, 3, 46.0),
    Sketcher.Constraint("DistanceY", -1, 1, 0, 3, 69.0),
    Sketcher.Constraint("DistanceX", -1, 1, 1, 3, 70.0),
    Sketcher.Constraint("DistanceY", -1, 1, 2, 3, 51.0),
])
sketch10.setExpression("Constraints[7]", "Params.sketch10_diameter")
pocket8 = doc.addObject("PartDesign::Pocket", "Pocket007")
body.addObject(pocket8)
pocket8.Profile = sketch10
pocket8.Type = "ThroughAll"

# Sketch on XY plane
sketch11 = doc.addObject("Sketcher::SketchObject", "Sketch010")
body.addObject(sketch11)
sketch11.AttachmentSupport = (doc.XY_Plane, [""])
sketch11.MapMode = "FlatFace"
sketch11.AttachmentOffset = App.Placement(Vector(0, 0, 15), App.Rotation())
sketch11.addGeometry([
    Part.Circle(Vector(70, 69, 0), Vector(0, 0, 1), 3.8),
    Part.Circle(Vector(46, 69, 0), Vector(0, 0, 1), 3.8),
    Part.Circle(Vector(46, 51, 0), Vector(0, 0, 1), 3.8),
    Part.Circle(Vector(70, 51, 0), Vector(0, 0, 1), 3.8),
], False)
sketch11.addConstraint([
    Sketcher.Constraint("Equal", 0, 1),
    Sketcher.Constraint("Equal", 1, 2),
    Sketcher.Constraint("Equal", 2, 3),
    Sketcher.Constraint("Horizontal", 0, 3, 1, 3),
    Sketcher.Constraint("Horizontal", 2, 3, 3, 3),
    Sketcher.Constraint("Vertical", 1, 3, 2, 3),
    Sketcher.Constraint("Vertical", 0, 3, 3, 3),
    Sketcher.Constraint("Diameter", 0, 7.6),
    Sketcher.Constraint("DistanceX", -1, 1, 0, 3, 70.0),
    Sketcher.Constraint("DistanceY", -1, 1, 0, 3, 69.0),
    Sketcher.Constraint("DistanceX", -1, 1, 1, 3, 46.0),
    Sketcher.Constraint("DistanceY", -1, 1, 2, 3, 51.0),
])
sketch11.setExpression("Constraints[7]", "Params.sketch11_diameter")
pocket9 = doc.addObject("PartDesign::Pocket", "Pocket008")
body.addObject(pocket9)
pocket9.Profile = sketch11
pocket9.setExpression("Length", "Params.pocket9_length")

# Sketch on XY plane
sketch12 = doc.addObject("Sketcher::SketchObject", "Sketch011")
body.addObject(sketch12)
sketch12.AttachmentSupport = (doc.XY_Plane, [""])
sketch12.MapMode = "FlatFace"
sketch12.AttachmentOffset = App.Placement(Vector(0, 0, 15), App.Rotation())
sketch12.addGeometry([
    Part.Circle(Vector(-70, 69, 0), Vector(0, 0, 1), 2.5),
    Part.Circle(Vector(-46, 69, 0), Vector(0, 0, 1), 2.5),
    Part.Circle(Vector(-46, 51, 0), Vector(0, 0, 1), 2.5),
    Part.Circle(Vector(-70, 51, 0), Vector(0, 0, 1), 2.5),
], False)
sketch12.addConstraint([
    Sketcher.Constraint("Equal", 0, 1),
    Sketcher.Constraint("Equal", 1, 2),
    Sketcher.Constraint("Equal", 2, 3),
    Sketcher.Constraint("Horizontal", 0, 3, 1, 3),
    Sketcher.Constraint("Horizontal", 2, 3, 3, 3),
    Sketcher.Constraint("Vertical", 1, 3, 2, 3),
    Sketcher.Constraint("Vertical", 0, 3, 3, 3),
    Sketcher.Constraint("Diameter", 0, 5.0),
    Sketcher.Constraint("DistanceX", 0, 3, -1, 1, 70.0),
    Sketcher.Constraint("DistanceY", -1, 1, 0, 3, 69.0),
    Sketcher.Constraint("DistanceX", 1, 3, -1, 1, 46.0),
    Sketcher.Constraint("DistanceY", -1, 1, 2, 3, 51.0),
])
sketch12.setExpression("Constraints[7]", "Params.sketch12_diameter")
pocket10 = doc.addObject("PartDesign::Pocket", "Pocket009")
body.addObject(pocket10)
pocket10.Profile = sketch12
pocket10.Type = "ThroughAll"

# Sketch on XY plane
sketch13 = doc.addObject("Sketcher::SketchObject", "Sketch012")
body.addObject(sketch13)
sketch13.AttachmentSupport = (doc.XY_Plane, [""])
sketch13.MapMode = "FlatFace"
sketch13.AttachmentOffset = App.Placement(Vector(0, 0, 15), App.Rotation())
sketch13.addGeometry([
    Part.Circle(Vector(-70, 69, 0), Vector(0, 0, 1), 3.8),
    Part.Circle(Vector(-46, 69, 0), Vector(0, 0, 1), 3.8),
    Part.Circle(Vector(-46, 51, 0), Vector(0, 0, 1), 3.8),
    Part.Circle(Vector(-70, 51, 0), Vector(0, 0, 1), 3.8),
], False)
sketch13.addConstraint([
    Sketcher.Constraint("Equal", 0, 1),
    Sketcher.Constraint("Equal", 1, 2),
    Sketcher.Constraint("Equal", 2, 3),
    Sketcher.Constraint("Horizontal", 0, 3, 1, 3),
    Sketcher.Constraint("Horizontal", 2, 3, 3, 3),
    Sketcher.Constraint("Vertical", 1, 3, 2, 3),
    Sketcher.Constraint("Vertical", 0, 3, 3, 3),
    Sketcher.Constraint("Diameter", 0, 7.6),
    Sketcher.Constraint("DistanceX", 0, 3, -1, 1, 70.0),
    Sketcher.Constraint("DistanceY", -1, 1, 0, 3, 69.0),
    Sketcher.Constraint("DistanceX", 1, 3, -1, 1, 46.0),
    Sketcher.Constraint("DistanceY", -1, 1, 2, 3, 51.0),
])
sketch13.setExpression("Constraints[7]", "Params.sketch13_diameter")
pocket11 = doc.addObject("PartDesign::Pocket", "Pocket010")
body.addObject(pocket11)
pocket11.Profile = sketch13
pocket11.setExpression("Length", "Params.pocket11_length")

# Sketch on XY plane
sketch14 = doc.addObject("Sketcher::SketchObject", "Sketch013")
body.addObject(sketch14)
sketch14.AttachmentSupport = (doc.XY_Plane, [""])
sketch14.MapMode = "FlatFace"
add_polygon(sketch14, [(-38, -57.073171), (-23, -42.439024), (-23, -27), (-42.8, -27), (-55.466667, -42), (-38, -42)])  # lines 0-5
sketch14.addConstraint([
    Sketcher.Constraint("Vertical", 1),
    Sketcher.Constraint("Horizontal", 2),
    Sketcher.Constraint("Horizontal", 4),
    Sketcher.Constraint("Vertical", 5),
    Sketcher.Constraint("DistanceX", 2, 2, 2, 1, 19.8),
    Sketcher.Constraint("DistanceX", 0, 2, -1, 1, 23.0),
    Sketcher.Constraint("DistanceY", 1, 2, -1, 1, 27.0),
    Sketcher.Constraint("DistanceY", 3, 2, -1, 1, 42.0),
    Sketcher.Constraint("DistanceX", 4, 2, -1, 1, 38.0),
    Sketcher.Constraint("DistanceY", 5, 2, 5, 1, 15.073171),
    Sketcher.Constraint("Distance", 3, 19.632739),
    Sketcher.Constraint("DistanceY", 1, 1, 1, 2, 15.439024),
])
sketch14.setExpression("Constraints[10]", "Params.sketch14_width")
pad3 = doc.addObject("PartDesign::Pad", "Pad002")
body.addObject(pad3)
pad3.Profile = sketch14
pad3.setExpression("Length", "Params.pad3_length")

# Sketch on XY plane
sketch15 = doc.addObject("Sketcher::SketchObject", "Sketch014")
body.addObject(sketch15)
sketch15.AttachmentSupport = (doc.XY_Plane, [""])
sketch15.MapMode = "FlatFace"
add_polygon(sketch15, [(22.625, -42.073171), (38, -57.073171), (38, -42), (55.466667, -42), (42.8, -27), (22.625, -27)])  # lines 0-5
sketch15.addConstraint([
    Sketcher.Constraint("Vertical", 1),
    Sketcher.Constraint("Horizontal", 2),
    Sketcher.Constraint("Horizontal", 4),
    Sketcher.Constraint("Vertical", 5),
    Sketcher.Constraint("Equal", 1, 5),
    Sketcher.Constraint("DistanceX", -1, 1, 0, 2, 38.0),
    Sketcher.Constraint("DistanceY", 1, 2, -1, 1, 42.0),
    Sketcher.Constraint("DistanceY", 3, 2, -1, 1, 27.0),
    Sketcher.Constraint("DistanceX", -1, 1, 3, 2, 42.8),
    Sketcher.Constraint("DistanceX", 4, 2, 4, 1, 20.175),
    Sketcher.Constraint("DistanceY", 1, 1, 1, 2, 15.073171),
    Sketcher.Constraint("Distance", 3, 19.632739),
])
pad4 = doc.addObject("PartDesign::Pad", "Pad003")
body.addObject(pad4)
pad4.Profile = sketch15
pad4.setExpression("Length", "Params.pad4_length")

# Sketch on XY plane
sketch16 = doc.addObject("Sketcher::SketchObject", "Sketch015")
body.addObject(sketch16)
sketch16.AttachmentSupport = (doc.XY_Plane, [""])
sketch16.MapMode = "FlatFace"
add_polygon(sketch16, [(37.925, 57), (22.925, 42.365854), (22.925, 27), (42.8, 27), (55.466667, 42), (37.925, 42)])  # lines 0-5
sketch16.addConstraint([
    Sketcher.Constraint("Vertical", 1),
    Sketcher.Constraint("Horizontal", 2),
    Sketcher.Constraint("Horizontal", 4),
    Sketcher.Constraint("Vertical", 5),
    Sketcher.Constraint("DistanceY", 5, 1, 5, 2, 15.0),
    Sketcher.Constraint("DistanceY", -1, 1, 1, 2, 27.0),
    Sketcher.Constraint("DistanceY", -1, 1, 3, 2, 42.0),
    Sketcher.Constraint("DistanceX", 0, 2, 4, 2, 15.0),
    Sketcher.Constraint("DistanceX", -1, 1, 2, 2, 42.8),
    Sketcher.Constraint("DistanceX", 2, 1, 2, 2, 19.875),
    Sketcher.Constraint("Distance", 3, 19.632739),
    Sketcher.Constraint("DistanceY", 1, 2, 1, 1, 15.365854),
])
sketch16.setExpression("Constraints[10]", "Params.sketch16_height")
pad5 = doc.addObject("PartDesign::Pad", "Pad004")
body.addObject(pad5)
pad5.Profile = sketch16
pad5.setExpression("Length", "Params.pad5_length")

# Sketch on XY plane
sketch17 = doc.addObject("Sketcher::SketchObject", "Sketch016")
body.addObject(sketch17)
sketch17.AttachmentSupport = (doc.XY_Plane, [""])
sketch17.MapMode = "FlatFace"
add_polygon(sketch17, [(-22.625, 42.073171), (-38, 57.073171), (-38, 42), (-55.466667, 42), (-42.764877, 27), (-22.625, 27)])  # lines 0-5
sketch17.addConstraint([
    Sketcher.Constraint("Vertical", 1),
    Sketcher.Constraint("Horizontal", 2),
    Sketcher.Constraint("Horizontal", 4),
    Sketcher.Constraint("Vertical", 5),
    Sketcher.Constraint("Equal", 1, 5),
    Sketcher.Constraint("DistanceX", 0, 2, -1, 1, 38.0),
    Sketcher.Constraint("DistanceY", -1, 1, 1, 2, 42.0),
    Sketcher.Constraint("DistanceY", -1, 1, 3, 2, 27.0),
    Sketcher.Constraint("DistanceX", 4, 2, -1, 1, 22.625),
    Sketcher.Constraint("DistanceY", 1, 2, 1, 1, 15.073171),
    Sketcher.Constraint("DistanceX", 2, 2, 2, 1, 17.466667),
    Sketcher.Constraint("DistanceX", 4, 1, 4, 2, 20.139877),
])
pad6 = doc.addObject("PartDesign::Pad", "Pad005")
body.addObject(pad6)
pad6.Profile = sketch17
pad6.setExpression("Length", "Params.pad6_length")

# Sketch on XZ plane
sketch18 = doc.addObject("Sketcher::SketchObject", "Sketch017")
body.addObject(sketch18)
sketch18.AttachmentSupport = (doc.XZ_Plane, [""])
sketch18.MapMode = "FlatFace"
sketch18.AttachmentOffset = App.Placement(Vector(0, 0, 75), App.Rotation())
add_polygon(sketch18, [(51, 0), (51, -10), (58, -10), (58, 0)])  # lines 0-3
sketch18.addConstraint([
    Sketcher.Constraint("Vertical", 0),
    Sketcher.Constraint("Horizontal", 1),
    Sketcher.Constraint("Vertical", 2),
    Sketcher.Constraint("Horizontal", 3),
    Sketcher.Constraint("PointOnObject", 2, 2, -1),
    Sketcher.Constraint("DistanceX", 1, 1, 1, 2, 7.0),
    Sketcher.Constraint("DistanceY", 0, 2, 0, 1, 10.0),
    Sketcher.Constraint("DistanceX", -1, 1, 0, 2, 51.0),
])
sketch18.setExpression("Constraints[9]", "Params.sketch18_width")
sketch18.setExpression("Constraints[10]", "Params.sketch18_height")
pocket12 = doc.addObject("PartDesign::Pocket", "Pocket011")
body.addObject(pocket12)
pocket12.Profile = sketch18
pocket12.Type = "ThroughAll"

# Sketch on XZ plane
sketch19 = doc.addObject("Sketcher::SketchObject", "Sketch018")
body.addObject(sketch19)
sketch19.AttachmentSupport = (doc.XZ_Plane, [""])
sketch19.MapMode = "FlatFace"
sketch19.AttachmentOffset = App.Placement(Vector(0, 0, 45), App.Rotation())
add_polygon(sketch19, [(-58, 0), (-58, -10), (-51, -10), (-51, 0)])  # lines 0-3
sketch19.addConstraint([
    Sketcher.Constraint("Vertical", 0),
    Sketcher.Constraint("Horizontal", 1),
    Sketcher.Constraint("Vertical", 2),
    Sketcher.Constraint("Horizontal", 3),
    Sketcher.Constraint("PointOnObject", 2, 2, -1),
    Sketcher.Constraint("DistanceX", 1, 1, 1, 2, 7.0),
    Sketcher.Constraint("DistanceY", 0, 2, 0, 1, 10.0),
    Sketcher.Constraint("DistanceX", 0, 2, -1, 1, 58.0),
])
sketch19.setExpression("Constraints[9]", "Params.sketch19_width")
sketch19.setExpression("Constraints[10]", "Params.sketch19_height")
pocket13 = doc.addObject("PartDesign::Pocket", "Pocket012")
body.addObject(pocket13)
pocket13.Profile = sketch19
pocket13.Type = "ThroughAll"

doc.recompute()
